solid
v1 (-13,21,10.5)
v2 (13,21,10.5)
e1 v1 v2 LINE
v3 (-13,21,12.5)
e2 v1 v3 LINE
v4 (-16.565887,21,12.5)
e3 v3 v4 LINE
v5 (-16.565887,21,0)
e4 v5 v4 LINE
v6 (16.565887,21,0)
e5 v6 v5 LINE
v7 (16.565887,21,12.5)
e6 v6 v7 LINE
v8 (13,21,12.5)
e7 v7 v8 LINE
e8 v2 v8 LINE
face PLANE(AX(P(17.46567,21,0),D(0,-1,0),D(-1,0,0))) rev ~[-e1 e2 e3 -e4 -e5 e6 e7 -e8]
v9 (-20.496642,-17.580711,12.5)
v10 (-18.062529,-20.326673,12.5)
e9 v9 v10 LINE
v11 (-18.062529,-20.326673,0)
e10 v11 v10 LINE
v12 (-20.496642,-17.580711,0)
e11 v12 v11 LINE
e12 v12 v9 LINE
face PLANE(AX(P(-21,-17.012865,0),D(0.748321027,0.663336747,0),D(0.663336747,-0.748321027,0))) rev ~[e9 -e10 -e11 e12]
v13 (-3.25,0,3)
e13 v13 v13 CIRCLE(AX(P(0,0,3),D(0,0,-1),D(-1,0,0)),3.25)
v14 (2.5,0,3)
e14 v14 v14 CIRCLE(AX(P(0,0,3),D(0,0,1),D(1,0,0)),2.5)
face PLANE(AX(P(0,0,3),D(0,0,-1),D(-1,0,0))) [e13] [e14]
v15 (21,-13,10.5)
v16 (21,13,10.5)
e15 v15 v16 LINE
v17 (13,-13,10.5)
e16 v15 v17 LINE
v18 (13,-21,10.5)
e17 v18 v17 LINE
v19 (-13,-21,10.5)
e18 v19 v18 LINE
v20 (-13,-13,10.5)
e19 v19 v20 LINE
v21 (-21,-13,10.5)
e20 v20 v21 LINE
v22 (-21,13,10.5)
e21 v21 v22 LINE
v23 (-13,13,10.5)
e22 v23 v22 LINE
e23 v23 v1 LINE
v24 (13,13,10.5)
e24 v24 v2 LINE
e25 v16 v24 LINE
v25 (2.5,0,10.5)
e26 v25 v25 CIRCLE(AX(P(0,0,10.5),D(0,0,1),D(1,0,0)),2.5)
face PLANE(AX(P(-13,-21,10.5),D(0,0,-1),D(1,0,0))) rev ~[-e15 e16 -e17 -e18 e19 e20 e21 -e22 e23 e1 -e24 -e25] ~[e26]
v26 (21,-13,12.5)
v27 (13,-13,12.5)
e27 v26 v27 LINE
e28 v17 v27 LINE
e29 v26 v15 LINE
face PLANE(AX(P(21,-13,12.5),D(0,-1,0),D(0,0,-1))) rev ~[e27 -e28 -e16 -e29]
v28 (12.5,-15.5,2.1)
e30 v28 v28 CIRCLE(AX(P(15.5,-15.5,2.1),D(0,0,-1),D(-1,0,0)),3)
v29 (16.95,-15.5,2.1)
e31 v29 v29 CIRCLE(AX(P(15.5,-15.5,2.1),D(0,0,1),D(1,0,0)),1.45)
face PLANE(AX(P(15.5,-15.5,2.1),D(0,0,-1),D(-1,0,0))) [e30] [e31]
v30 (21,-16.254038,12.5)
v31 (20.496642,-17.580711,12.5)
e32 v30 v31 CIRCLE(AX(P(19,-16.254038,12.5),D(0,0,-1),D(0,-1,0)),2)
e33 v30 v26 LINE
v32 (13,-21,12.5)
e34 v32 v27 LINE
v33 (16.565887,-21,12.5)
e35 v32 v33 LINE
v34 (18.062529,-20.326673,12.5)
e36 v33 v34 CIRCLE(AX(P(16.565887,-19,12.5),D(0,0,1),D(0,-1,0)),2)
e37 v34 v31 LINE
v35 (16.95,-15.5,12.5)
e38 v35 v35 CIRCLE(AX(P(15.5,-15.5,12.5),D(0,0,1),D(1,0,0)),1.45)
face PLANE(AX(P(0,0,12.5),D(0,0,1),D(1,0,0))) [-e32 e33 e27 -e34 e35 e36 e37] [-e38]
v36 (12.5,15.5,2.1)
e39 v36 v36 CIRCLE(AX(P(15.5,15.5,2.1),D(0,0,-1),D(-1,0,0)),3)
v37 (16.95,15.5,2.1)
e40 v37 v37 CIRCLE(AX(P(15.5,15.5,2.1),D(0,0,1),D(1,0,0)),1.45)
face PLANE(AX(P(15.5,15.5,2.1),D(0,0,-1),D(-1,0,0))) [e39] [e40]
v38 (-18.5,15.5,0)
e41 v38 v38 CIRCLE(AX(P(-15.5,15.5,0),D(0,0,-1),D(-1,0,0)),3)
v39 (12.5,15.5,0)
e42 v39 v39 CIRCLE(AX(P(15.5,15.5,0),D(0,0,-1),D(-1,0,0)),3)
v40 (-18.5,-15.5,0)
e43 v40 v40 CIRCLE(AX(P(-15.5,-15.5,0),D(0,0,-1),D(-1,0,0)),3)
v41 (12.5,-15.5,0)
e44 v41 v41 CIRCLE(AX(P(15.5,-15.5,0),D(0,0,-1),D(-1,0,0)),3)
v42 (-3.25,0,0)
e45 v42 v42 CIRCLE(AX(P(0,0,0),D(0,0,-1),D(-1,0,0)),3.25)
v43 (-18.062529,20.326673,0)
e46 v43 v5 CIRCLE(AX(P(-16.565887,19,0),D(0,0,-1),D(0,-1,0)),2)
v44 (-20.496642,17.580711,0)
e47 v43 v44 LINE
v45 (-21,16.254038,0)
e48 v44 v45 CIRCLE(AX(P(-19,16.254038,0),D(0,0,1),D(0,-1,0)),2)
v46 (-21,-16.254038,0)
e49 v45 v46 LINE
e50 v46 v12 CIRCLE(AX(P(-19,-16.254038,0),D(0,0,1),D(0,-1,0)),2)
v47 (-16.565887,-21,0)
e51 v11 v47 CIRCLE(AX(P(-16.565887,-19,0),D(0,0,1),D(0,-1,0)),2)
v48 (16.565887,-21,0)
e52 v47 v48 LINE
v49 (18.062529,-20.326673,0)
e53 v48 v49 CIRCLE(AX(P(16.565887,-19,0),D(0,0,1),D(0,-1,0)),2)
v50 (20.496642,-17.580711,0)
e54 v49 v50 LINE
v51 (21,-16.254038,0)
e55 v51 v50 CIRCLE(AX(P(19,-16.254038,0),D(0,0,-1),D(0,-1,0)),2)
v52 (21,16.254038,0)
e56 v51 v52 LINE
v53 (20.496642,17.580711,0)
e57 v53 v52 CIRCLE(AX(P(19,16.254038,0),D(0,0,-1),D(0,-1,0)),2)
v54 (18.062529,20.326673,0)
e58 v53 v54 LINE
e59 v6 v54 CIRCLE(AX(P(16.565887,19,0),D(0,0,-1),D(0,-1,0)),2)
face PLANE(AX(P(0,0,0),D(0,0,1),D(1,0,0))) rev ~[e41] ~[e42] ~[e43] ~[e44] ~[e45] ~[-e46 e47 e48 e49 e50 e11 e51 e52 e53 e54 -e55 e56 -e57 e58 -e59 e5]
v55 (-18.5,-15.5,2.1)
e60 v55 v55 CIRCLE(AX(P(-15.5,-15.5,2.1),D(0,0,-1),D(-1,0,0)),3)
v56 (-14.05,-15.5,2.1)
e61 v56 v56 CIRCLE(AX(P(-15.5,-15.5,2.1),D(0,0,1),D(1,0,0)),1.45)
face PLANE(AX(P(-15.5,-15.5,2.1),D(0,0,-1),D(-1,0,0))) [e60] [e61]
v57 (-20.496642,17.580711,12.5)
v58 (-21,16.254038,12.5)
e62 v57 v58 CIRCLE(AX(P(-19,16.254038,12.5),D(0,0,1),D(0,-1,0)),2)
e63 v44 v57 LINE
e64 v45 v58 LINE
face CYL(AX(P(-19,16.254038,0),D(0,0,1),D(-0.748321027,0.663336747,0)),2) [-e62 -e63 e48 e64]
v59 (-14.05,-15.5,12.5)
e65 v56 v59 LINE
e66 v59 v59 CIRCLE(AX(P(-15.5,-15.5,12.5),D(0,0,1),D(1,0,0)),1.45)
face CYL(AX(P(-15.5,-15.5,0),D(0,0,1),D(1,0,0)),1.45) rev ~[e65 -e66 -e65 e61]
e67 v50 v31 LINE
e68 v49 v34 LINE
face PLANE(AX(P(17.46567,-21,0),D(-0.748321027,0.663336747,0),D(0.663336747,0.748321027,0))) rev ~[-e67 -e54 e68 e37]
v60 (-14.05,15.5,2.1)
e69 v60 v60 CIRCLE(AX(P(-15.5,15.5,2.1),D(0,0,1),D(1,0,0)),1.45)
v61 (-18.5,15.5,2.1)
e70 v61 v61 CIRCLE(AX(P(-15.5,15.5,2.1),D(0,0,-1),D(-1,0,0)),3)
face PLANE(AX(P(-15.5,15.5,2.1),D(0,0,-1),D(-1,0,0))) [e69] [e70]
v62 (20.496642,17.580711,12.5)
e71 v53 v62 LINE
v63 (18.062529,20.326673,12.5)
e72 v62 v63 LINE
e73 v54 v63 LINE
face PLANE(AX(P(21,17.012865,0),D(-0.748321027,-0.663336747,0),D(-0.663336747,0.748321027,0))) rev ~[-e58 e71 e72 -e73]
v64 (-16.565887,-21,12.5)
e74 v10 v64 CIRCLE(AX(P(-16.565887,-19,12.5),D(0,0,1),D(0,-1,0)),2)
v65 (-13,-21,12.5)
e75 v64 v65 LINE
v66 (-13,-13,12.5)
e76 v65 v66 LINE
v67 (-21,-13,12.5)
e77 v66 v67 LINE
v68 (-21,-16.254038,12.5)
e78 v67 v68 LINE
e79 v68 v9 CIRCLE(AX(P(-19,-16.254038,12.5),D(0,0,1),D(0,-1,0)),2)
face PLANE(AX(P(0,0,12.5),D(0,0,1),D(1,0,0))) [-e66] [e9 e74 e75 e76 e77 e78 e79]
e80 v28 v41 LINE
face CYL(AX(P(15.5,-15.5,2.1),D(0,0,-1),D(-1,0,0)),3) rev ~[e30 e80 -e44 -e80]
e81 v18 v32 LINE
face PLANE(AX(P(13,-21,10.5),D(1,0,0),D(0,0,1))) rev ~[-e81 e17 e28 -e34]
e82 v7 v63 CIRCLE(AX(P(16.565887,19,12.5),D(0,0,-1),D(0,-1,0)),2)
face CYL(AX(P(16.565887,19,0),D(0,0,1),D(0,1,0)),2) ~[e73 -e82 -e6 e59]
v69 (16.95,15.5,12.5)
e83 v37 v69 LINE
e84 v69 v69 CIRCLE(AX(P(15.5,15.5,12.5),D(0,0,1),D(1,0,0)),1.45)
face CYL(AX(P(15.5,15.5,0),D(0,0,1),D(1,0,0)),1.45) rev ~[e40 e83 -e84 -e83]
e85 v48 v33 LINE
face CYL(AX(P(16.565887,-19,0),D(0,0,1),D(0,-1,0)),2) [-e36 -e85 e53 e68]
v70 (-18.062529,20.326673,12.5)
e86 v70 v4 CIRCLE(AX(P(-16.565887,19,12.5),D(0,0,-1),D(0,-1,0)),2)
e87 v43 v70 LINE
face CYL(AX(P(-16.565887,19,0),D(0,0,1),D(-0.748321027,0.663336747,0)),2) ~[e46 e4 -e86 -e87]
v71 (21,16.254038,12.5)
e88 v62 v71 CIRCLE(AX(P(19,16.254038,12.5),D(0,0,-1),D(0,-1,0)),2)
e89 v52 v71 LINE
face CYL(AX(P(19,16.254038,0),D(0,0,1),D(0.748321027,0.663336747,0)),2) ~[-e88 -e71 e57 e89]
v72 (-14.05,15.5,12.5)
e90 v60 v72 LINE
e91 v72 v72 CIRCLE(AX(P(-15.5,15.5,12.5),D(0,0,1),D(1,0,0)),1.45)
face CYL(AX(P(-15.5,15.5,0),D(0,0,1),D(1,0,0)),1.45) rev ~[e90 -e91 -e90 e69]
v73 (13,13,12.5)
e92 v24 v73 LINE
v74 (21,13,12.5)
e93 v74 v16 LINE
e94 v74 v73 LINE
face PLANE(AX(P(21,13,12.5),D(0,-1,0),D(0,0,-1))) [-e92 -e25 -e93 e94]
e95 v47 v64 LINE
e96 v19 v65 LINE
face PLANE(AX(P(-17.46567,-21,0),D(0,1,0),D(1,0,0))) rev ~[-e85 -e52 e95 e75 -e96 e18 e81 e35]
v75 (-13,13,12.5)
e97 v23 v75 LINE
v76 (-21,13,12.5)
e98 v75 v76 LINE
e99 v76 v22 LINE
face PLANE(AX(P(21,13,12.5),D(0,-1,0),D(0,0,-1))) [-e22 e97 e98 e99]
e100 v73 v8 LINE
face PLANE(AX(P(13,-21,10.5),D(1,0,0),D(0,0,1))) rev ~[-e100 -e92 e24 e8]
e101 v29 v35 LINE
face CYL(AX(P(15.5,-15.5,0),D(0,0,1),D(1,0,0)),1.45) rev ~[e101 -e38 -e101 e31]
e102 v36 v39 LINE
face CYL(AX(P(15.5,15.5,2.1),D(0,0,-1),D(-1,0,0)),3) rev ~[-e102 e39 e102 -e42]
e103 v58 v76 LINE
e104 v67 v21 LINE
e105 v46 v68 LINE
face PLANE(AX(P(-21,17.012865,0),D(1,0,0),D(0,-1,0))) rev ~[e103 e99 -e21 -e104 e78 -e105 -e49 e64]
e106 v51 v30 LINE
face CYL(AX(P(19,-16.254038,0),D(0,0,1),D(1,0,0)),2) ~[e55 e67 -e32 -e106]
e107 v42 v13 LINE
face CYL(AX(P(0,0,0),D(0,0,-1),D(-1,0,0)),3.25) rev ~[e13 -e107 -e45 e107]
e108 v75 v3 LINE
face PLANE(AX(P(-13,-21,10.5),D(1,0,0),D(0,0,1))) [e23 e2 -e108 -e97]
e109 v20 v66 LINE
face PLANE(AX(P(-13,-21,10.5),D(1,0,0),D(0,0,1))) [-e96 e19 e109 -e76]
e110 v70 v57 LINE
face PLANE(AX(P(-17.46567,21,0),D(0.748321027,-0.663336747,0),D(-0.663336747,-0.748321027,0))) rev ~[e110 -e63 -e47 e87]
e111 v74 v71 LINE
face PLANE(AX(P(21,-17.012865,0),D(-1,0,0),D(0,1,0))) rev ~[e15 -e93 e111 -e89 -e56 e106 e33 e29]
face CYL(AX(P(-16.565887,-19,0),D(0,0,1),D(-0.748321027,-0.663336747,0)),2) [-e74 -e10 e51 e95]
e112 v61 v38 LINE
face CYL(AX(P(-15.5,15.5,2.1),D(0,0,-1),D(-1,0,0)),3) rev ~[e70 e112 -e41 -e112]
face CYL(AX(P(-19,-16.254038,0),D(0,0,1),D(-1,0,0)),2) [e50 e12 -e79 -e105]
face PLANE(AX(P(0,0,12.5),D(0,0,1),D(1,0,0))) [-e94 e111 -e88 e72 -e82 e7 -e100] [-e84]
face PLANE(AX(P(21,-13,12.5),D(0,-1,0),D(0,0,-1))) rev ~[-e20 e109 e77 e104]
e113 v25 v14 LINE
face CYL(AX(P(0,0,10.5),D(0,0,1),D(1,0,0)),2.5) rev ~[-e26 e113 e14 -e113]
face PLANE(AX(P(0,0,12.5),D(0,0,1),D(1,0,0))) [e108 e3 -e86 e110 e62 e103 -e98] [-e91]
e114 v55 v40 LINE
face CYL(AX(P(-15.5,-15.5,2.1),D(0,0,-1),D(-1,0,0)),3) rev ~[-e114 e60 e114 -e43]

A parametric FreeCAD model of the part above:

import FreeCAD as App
import Part
import Sketcher
from FreeCAD import Vector
Q = App.Units.Quantity


def edges_at(feature, points):
    """Names of the edges that pass closest to the given points."""
    edges = feature.Shape.Edges
    near = lambda p: min(range(len(edges)), key=lambda i: edges[i].distToShape(Part.Vertex(*p))[0])
    return sorted({f"Edge{near(p) + 1}" for p in points})

doc = App.newDocument("Part")
params = doc.addObject("Spreadsheet::Sheet", "Params")
for row, (alias, value) in enumerate([
    ("pad1_length", "12.5 mm"),
    ("sketch2_width", "26 mm"),
    ("sketch2_height", "2 mm"),
    ("sketch3_width", "26 mm"),
    ("sketch3_height", "2 mm"),
    ("sketch4_diameter", "6.5 mm"),
    ("pocket3_length", "3 mm"),
    ("sketch5_diameter", "5 mm"),
    ("sketch6_diameter", "2.9 mm"),
    ("hole_diameter", "2.9 mm"),
    ("hole_cbore_diameter", "6 mm"),
    ("hole_cbore_depth", "2.1 mm"),
    ("fillet_radius", "2 mm"),
], start=1):
    params.set(f"A{row}", alias)
    params.set(f"B{row}", "=" + value)
    params.setAlias(f"B{row}", alias)

body = doc.addObject("PartDesign::Body", "Body")

# Sketch on XY plane
sketch1 = doc.addObject("Sketcher::SketchObject", "Sketch")
body.addObject(sketch1)
sketch1.AttachmentSupport = (doc.XY_Plane, [""])
sketch1.MapMode = "FlatFace"
sketch1.addGeometry(Part.LineSegment(Vector(-17, 21, 0), Vector(-21, 17, 0)), False)
sketch1.addGeometry(Part.LineSegment(Vector(-21, 17, 0), Vector(-21, -17, 0)), False)
sketch1.addGeometry(Part.LineSegment(Vector(-21, -17, 0), Vector(-17, -21, 0)), False)
sketch1.addGeometry(Part.LineSegment(Vector(-17, -21, 0), Vector(17, -21, 0)), False)
sketch1.addGeometry(Part.LineSegment(Vector(17, -21, 0), Vector(21, -17, 0)), False)
sketch1.addGeometry(Part.LineSegment(Vector(21, -17, 0), Vector(21, 17, 0)), False)
sketch1.addGeometry(Part.LineSegment(Vector(21, 17, 0), Vector(17, 21, 0)), False)
sketch1.addGeometry(Part.LineSegment(Vector(17, 21, 0), Vector(-17, 21, 0)), False)
sketch1.addConstraint(Sketcher.Constraint("Coincident", 0, 2, 1, 1))
sketch1.addConstraint(Sketcher.Constraint("Coincident", 1, 2, 2, 1))
sketch1.addConstraint(Sketcher.Constraint("Coincident", 2, 2, 3, 1))
sketch1.addConstraint(Sketcher.Constraint("Coincident", 3, 2, 4, 1))
sketch1.addConstraint(Sketcher.Constraint("Coincident", 4, 2, 5, 1))
sketch1.addConstraint(Sketcher.Constraint("Coincident", 5, 2, 6, 1))
sketch1.addConstraint(Sketcher.Constraint("Coincident", 6, 2, 7, 1))
sketch1.addConstraint(Sketcher.Constraint("Coincident", 7, 2, 0, 1))
sketch1.addConstraint(Sketcher.Constraint("Vertical", 1))
sketch1.addConstraint(Sketcher.Constraint("Horizontal", 3))
sketch1.addConstraint(Sketcher.Constraint("Vertical", 5))
sketch1.addConstraint(Sketcher.Constraint("Horizontal", 7))
sketch1.addConstraint(Sketcher.Constraint("Symmetric", 0, 2, 4, 2, -1, 1))
sketch1.addConstraint(Sketcher.Constraint("Symmetric", 2, 2, 6, 2, -1, 1))
sketch1.addConstraint(Sketcher.Constraint("Parallel", 0, 4))
sketch1.addConstraint(Sketcher.Constraint("Parallel", 2, 6))
sketch1.addConstraint(Sketcher.Constraint("Horizontal", 1, 2, 4, 2))
sketch1.addConstraint(Sketcher.Constraint("Vertical", 3, 2, 6, 2))
sketch1.addConstraint(Sketcher.Constraint("DistanceX", 0, 2, -1, 1, Q("21 mm")))
sketch1.addConstraint(Sketcher.Constraint("DistanceY", 2, 2, -1, 1, Q("21 mm")))
sketch1.addConstraint(Sketcher.Constraint("DistanceX", 3, 1, 3, 2, Q("34.931341 mm")))
sketch1.addConstraint(Sketcher.Constraint("DistanceY", 1, 2, 1, 1, Q("34.02573 mm")))
pad1 = doc.addObject("PartDesign::Pad", "Pad")
body.addObject(pad1)
pad1.Profile = sketch1
pad1.setExpression("Length", "Params.pad1_length")

# Sketch on YZ plane
sketch2 = doc.addObject("Sketcher::SketchObject", "Sketch001")
body.addObject(sketch2)
sketch2.AttachmentSupport = (doc.YZ_Plane, [""])
sketch2.MapMode = "FlatFace"
sketch2.AttachmentOffset = App.Placement(Vector(0, 0, 21), App.Rotation())
sketch2.addGeometry(Part.LineSegment(Vector(13, 12.5, 0), Vector(-13, 12.5, 0)), False)
sketch2.addGeometry(Part.LineSegment(Vector(-13, 12.5, 0), Vector(-13, 10.5, 0)), False)
sketch2.addGeometry(Part.LineSegment(Vector(-13, 10.5, 0), Vector(13, 10.5, 0)), False)
sketch2.addGeometry(Part.LineSegment(Vector(13, 10.5, 0), Vector(13, 12.5, 0)), False)
sketch2.addConstraint(Sketcher.Constraint("Coincident", 0, 2, 1, 1))
sketch2.addConstraint(Sketcher.Constraint("Coincident", 1, 2, 2, 1))
sketch2.addConstraint(Sketcher.Constraint("Coincident", 2, 2, 3, 1))
sketch2.addConstraint(Sketcher.Constraint("Coincident", 3, 2, 0, 1))
sketch2.addConstraint(Sketcher.Constraint("Horizontal", 0))
sketch2.addConstraint(Sketcher.Constraint("Vertical", 1))
sketch2.addConstraint(Sketcher.Constraint("Horizontal", 2))
sketch2.addConstraint(Sketcher.Constraint("Vertical", 3))
sketch2.addConstraint(Sketcher.Constraint("DistanceX", 0, 2, 0, 1, Q("26 mm")))
sketch2.addConstraint(Sketcher.Constraint("DistanceY", 1, 2, 1, 1, Q("2 mm")))
sketch2.addConstraint(Sketcher.Constraint("DistanceX", 0, 2, -1, 1, Q("13 mm")))
sketch2.addConstraint(Sketcher.Constraint("DistanceY", -1, 1, 0, 2, Q("12.5 mm")))
sketch2.setExpression("Constraints[8]", "Params.sketch2_width")
sketch2.setExpression("Constraints[9]", "Params.sketch2_height")
pocket1 = doc.addObject("PartDesign::Pocket", "Pocket")
body.addObject(pocket1)
pocket1.Profile = sketch2
pocket1.Type = "ThroughAll"

# Sketch on XZ plane
sketch3 = doc.addObject("Sketcher::SketchObject", "Sketch002")
body.addObject(sketch3)
sketch3.AttachmentSupport = (doc.XZ_Plane, [""])
sketch3.MapMode = "FlatFace"
sketch3.AttachmentOffset = App.Placement(Vector(0, 0, 21), App.Rotation())
sketch3.addGeometry(Part.LineSegment(Vector(-13, 12.5, 0), Vector(-13, 10.5, 0)), False)
sketch3.addGeometry(Part.LineSegment(Vector(-13, 10.5, 0), Vector(13, 10.5, 0)), False)
sketch3.addGeometry(Part.LineSegment(Vector(13, 10.5, 0), Vector(13, 12.5, 0)), False)
sketch3.addGeometry(Part.LineSegment(Vector(13, 12.5, 0), Vector(-13, 12.5, 0)), False)
sketch3.addConstraint(Sketcher.Constraint("Coincident", 0, 2, 1, 1))
sketch3.addConstraint(Sketcher.Constraint("Coincident", 1, 2, 2, 1))
sketch3.addConstraint(Sketcher.Constraint("Coincident", 2, 2, 3, 1))
sketch3.addConstraint(Sketcher.Constraint("Coincident", 3, 2, 0, 1))
sketch3.addConstraint(Sketcher.Constraint("Vertical", 0))
sketch3.addConstraint(Sketcher.Constraint("Horizontal", 1))
sketch3.addConstraint(Sketcher.Constraint("Vertical", 2))
sketch3.addConstraint(Sketcher.Constraint("Horizontal", 3))
sketch3.addConstraint(Sketcher.Constraint("DistanceX", 1, 1, 1, 2, Q("26 mm")))
sketch3.addConstraint(Sketcher.Constraint("DistanceY", 0, 2, 0, 1, Q("2 mm")))
sketch3.addConstraint(Sketcher.Constraint("DistanceX", 0, 2, -1, 1, Q("13 mm")))
sketch3.addConstraint(Sketcher.Constraint("DistanceY", -1, 1, 0, 2, Q("10.5 mm")))
sketch3.setExpression("Constraints[8]", "Params.sketch3_width")
sketch3.setExpression("Constraints[9]", "Params.sketch3_height")
pocket2 = doc.addObject("PartDesign::Pocket", "Pocket001")
body.addObject(pocket2)
pocket2.Profile = sketch3
pocket2.Type = "ThroughAll"

# Sketch on XY plane
sketch4 = doc.addObject("Sketcher::SketchObject", "Sketch003")
body.addObject(sketch4)
sketch4.AttachmentSupport = (doc.XY_Plane, [""])
sketch4.MapMode = "FlatFace"
sketch4.addGeometry(Part.Circle(Vector(0, 0, 0), Vector(0, 0, 1), 3.2), False)
sketch4.addConstraint(Sketcher.Constraint("Coincident", 0, 3, -1, 1))
sketch4.addConstraint(Sketcher.Constraint("Diameter", 0, Q("6.5 mm")))
sketch4.setExpression("Constraints[1]", "Params.sketch4_diameter")
pocket3 = doc.addObject("PartDesign::Pocket", "Pocket002")
body.addObject(pocket3)
pocket3.Profile = sketch4
pocket3.setExpression("Length", "Params.pocket3_length")
pocket3.Reversed = True

# Sketch on XY plane
sketch5 = doc.addObject("Sketcher::SketchObject", "Sketch004")
body.addObject(sketch5)
sketch5.AttachmentSupport = (doc.XY_Plane, [""])
sketch5.MapMode = "FlatFace"
sketch5.AttachmentOffset = App.Placement(Vector(0, 0, 10.5), App.Rotation())
sketch5.addGeometry(Part.Circle(Vector(0, 0, 0), Vector(0, 0, 1), 2.5), False)
sketch5.addConstraint(Sketcher.Constraint("Coincident", 0, 3, -1, 1))
sketch5.addConstraint(Sketcher.Constraint("Diameter", 0, Q("5 mm")))
sketch5.setExpression("Constraints[1]", "Params.sketch5_diameter")
pocket4 = doc.addObject("PartDesign::Pocket", "Pocket003")
body.addObject(pocket4)
pocket4.Profile = sketch5
pocket4.Type = "ThroughAll"

# Sketch on XY plane
sketch6 = doc.addObject("Sketcher::SketchObject", "Sketch005")
body.addObject(sketch6)
sketch6.AttachmentSupport = (doc.XY_Plane, [""])
sketch6.MapMode = "FlatFace"
sketch6.addGeometry(Part.Circle(Vector(15.5, 15.5, 0), Vector(0, 0, 1), 1.4), False)
sketch6.addGeometry(Part.Circle(Vector(-15.5, 15.5, 0), Vector(0, 0, 1), 1.4), False)
sketch6.addGeometry(Part.Circle(Vector(-15.5, -15.5, 0), Vector(0, 0, 1), 1.4), False)
sketch6.addGeometry(Part.Circle(Vector(15.5, -15.5, 0), Vector(0, 0, 1), 1.4), False)
sketch6.addConstraint(Sketcher.Constraint("Equal", 0, 1))
sketch6.addConstraint(Sketcher.Constraint("Equal", 1, 2))
sketch6.addConstraint(Sketcher.Constraint("Equal", 2, 3))
sketch6.addConstraint(Sketcher.Constraint("Symmetric", 0, 3, 2, 3, -1, 1))
sketch6.addConstraint(Sketcher.Constraint("Symmetric", 1, 3, 3, 3, -1, 1))
sketch6.addConstraint(Sketcher.Constraint("Symmetric", 0, 3, 1, 3, -2))
sketch6.addConstraint(Sketcher.Constraint("Diameter", 0, Q("2.9 mm")))
sketch6.addConstraint(Sketcher.Constraint("DistanceX", 1, 3, 0, 3, Q("31 mm")))
sketch6.addConstraint(Sketcher.Constraint("DistanceY", 2, 3, 1, 3, Q("31 mm")))
sketch6.setExpression("Constraints[6]", "Params.sketch6_diameter")
doc.recompute()
hole = doc.addObject("PartDesign::Hole", "Hole")
body.addObject(hole)
hole.Profile = sketch6
hole.ThreadType = "None"
hole.setExpression("Diameter", "Params.hole_diameter")
hole.DepthType = "ThroughAll"
hole.HoleCutType = "Counterbore"
hole.setExpression("HoleCutDiameter", "Params.hole_cbore_diameter")
hole.setExpression("HoleCutDepth", "Params.hole_cbore_depth")
hole.Reversed = True
doc.recompute()

fillet = doc.addObject("PartDesign::Fillet", "Fillet")
body.addObject(fillet)
fillet.Base = (hole, edges_at(hole, [
    (17.466, 21, 6.25),
    (21, 17.013, 6.25),
    (21, -17.013, 6.25),
    (17.466, -21, 6.25),
    (-17.466, -21, 6.25),
    (-21, -17.013, 6.25),
    (-21, 17.013, 6.25),
    (-17.466, 21, 6.25),
]))
fillet.setExpression("Radius", "Params.fillet_radius")

doc.recompute()
